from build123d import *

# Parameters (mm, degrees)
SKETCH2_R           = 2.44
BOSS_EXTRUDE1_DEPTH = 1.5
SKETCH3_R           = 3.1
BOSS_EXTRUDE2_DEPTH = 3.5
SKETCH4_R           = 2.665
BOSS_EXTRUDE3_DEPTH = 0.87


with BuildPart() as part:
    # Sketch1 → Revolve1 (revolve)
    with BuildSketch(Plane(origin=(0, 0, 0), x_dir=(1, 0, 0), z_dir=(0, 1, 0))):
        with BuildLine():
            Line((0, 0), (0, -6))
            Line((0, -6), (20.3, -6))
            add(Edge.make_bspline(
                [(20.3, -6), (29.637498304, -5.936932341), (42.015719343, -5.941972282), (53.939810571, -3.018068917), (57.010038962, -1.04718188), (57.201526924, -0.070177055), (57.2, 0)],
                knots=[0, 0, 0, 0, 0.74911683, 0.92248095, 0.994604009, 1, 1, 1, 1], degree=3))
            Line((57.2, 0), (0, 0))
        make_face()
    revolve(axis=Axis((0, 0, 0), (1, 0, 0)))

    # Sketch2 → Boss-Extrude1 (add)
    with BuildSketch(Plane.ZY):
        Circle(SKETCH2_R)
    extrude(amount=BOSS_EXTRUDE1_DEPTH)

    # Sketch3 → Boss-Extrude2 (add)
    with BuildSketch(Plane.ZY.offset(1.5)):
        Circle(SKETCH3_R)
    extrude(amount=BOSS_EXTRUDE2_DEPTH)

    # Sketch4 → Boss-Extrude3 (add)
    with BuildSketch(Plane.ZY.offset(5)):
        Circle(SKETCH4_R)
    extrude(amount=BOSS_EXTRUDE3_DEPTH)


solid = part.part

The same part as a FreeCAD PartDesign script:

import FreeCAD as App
import Part
import Sketcher

V = App.Vector
Q = App.Units.Quantity

doc = App.newDocument("Part")
body = doc.addObject("PartDesign::Body", "Body")

sketch1 = doc.addObject("Sketcher::SketchObject", "Sketch")
body.addObject(sketch1)
sketch1.AttachmentSupport = (doc.XZ_Plane, [""])
sketch1.MapMode = "FlatFace"
sketch1.addGeometry([
    Part.LineSegment(V(0, 0, 0), V(0, 6, 0)),
    Part.LineSegment(V(0, 6, 0), V(20.3, 6, 0)),
    Part.BSplineCurve([V(20.3, 6, 0), V(29.637498, 5.936932, 0), V(42.015719, 5.941972, 0), V(53.939811, 3.018069, 0), V(57.010039, 1.047182, 0), V(57.201527, 0.070177, 0), V(57.2, 0, 0)], [4, 1, 1, 1, 4], [0, 0.74911683, 0.92248095, 0.994604009, 1], False, 3, [1, 1, 1, 1, 1, 1, 1], False),
    Part.LineSegment(V(57.2, 0, 0), V(0, 0, 0)),
], False)
sketch1.addConstraint([
    Sketcher.Constraint("Block", 2),
    Sketcher.Constraint("Coincident", 0, 2, 1, 1),
    Sketcher.Constraint("Coincident", 1, 2, 2, 1),
    Sketcher.Constraint("Coincident", 2, 2, 3, 1),
    Sketcher.Constraint("Coincident", 3, 2, 0, 1),
    Sketcher.Constraint("Vertical", 0),
    Sketcher.Constraint("Horizontal", 1),
    Sketcher.Constraint("Horizontal", 3),
    Sketcher.Constraint("PointOnObject", 0, 2, -2),
])
revolution = doc.addObject("PartDesign::Revolution", "Revolution")
body.addObject(revolution)
revolution.Profile = sketch1
revolution.ReferenceAxis = (sketch1, ["H_Axis"])
revolution.Angle = 360

sketch2 = doc.addObject("Sketcher::SketchObject", "Sketch001")
body.addObject(sketch2)
sketch2.AttachmentSupport = (doc.YZ_Plane, [""])
sketch2.MapMode = "FlatFace"
sketch2.addGeometry(Part.Circle(V(0, 0, 0), V(0, 0, 1), 2.4), False)
sketch2.addConstraint([
    Sketcher.Constraint("Coincident", 0, 3, -1, 1),
    Sketcher.Constraint("Diameter", 0, Q("4.88 mm")),
])
pad1 = doc.addObject("PartDesign::Pad", "Pad")
body.addObject(pad1)
pad1.Profile = sketch2
pad1.Length = 1.5
pad1.Reversed = True

sketch3 = doc.addObject("Sketcher::SketchObject", "Sketch002")
body.addObject(sketch3)
sketch3.AttachmentSupport = (doc.YZ_Plane, [""])
sketch3.MapMode = "FlatFace"
sketch3.AttachmentOffset = App.Placement(V(0, 0, -1.5), App.Rotation())
sketch3.addGeometry(Part.Circle(V(0, 0, 0), V(0, 0, 1), 3.1), False)
sketch3.addConstraint([
    Sketcher.Constraint("Coincident", 0, 3, -1, 1),
    Sketcher.Constraint("Diameter", 0, Q("6.2 mm")),
])
pad2 = doc.addObject("PartDesign::Pad", "Pad001")
body.addObject(pad2)
pad2.Profile = sketch3
pad2.Length = 3.5
pad2.Reversed = True

sketch4 = doc.addObject("Sketcher::SketchObject", "Sketch003")
body.addObject(sketch4)
sketch4.AttachmentSupport = (doc.YZ_Plane, [""])
sketch4.MapMode = "FlatFace"
sketch4.AttachmentOffset = App.Placement(V(0, 0, -5), App.Rotation())
sketch4.addGeometry(Part.Circle(V(0, 0, 0), V(0, 0, 1), 2.7), False)
sketch4.addConstraint([
    Sketcher.Constraint("Coincident", 0, 3, -1, 1),
    Sketcher.Constraint("Diameter", 0, Q("5.33 mm")),
])
pad3 = doc.addObject("PartDesign::Pad", "Pad002")
body.addObject(pad3)
pad3.Profile = sketch4
pad3.Length = 0.87
pad3.Reversed = True

doc.recompute()
